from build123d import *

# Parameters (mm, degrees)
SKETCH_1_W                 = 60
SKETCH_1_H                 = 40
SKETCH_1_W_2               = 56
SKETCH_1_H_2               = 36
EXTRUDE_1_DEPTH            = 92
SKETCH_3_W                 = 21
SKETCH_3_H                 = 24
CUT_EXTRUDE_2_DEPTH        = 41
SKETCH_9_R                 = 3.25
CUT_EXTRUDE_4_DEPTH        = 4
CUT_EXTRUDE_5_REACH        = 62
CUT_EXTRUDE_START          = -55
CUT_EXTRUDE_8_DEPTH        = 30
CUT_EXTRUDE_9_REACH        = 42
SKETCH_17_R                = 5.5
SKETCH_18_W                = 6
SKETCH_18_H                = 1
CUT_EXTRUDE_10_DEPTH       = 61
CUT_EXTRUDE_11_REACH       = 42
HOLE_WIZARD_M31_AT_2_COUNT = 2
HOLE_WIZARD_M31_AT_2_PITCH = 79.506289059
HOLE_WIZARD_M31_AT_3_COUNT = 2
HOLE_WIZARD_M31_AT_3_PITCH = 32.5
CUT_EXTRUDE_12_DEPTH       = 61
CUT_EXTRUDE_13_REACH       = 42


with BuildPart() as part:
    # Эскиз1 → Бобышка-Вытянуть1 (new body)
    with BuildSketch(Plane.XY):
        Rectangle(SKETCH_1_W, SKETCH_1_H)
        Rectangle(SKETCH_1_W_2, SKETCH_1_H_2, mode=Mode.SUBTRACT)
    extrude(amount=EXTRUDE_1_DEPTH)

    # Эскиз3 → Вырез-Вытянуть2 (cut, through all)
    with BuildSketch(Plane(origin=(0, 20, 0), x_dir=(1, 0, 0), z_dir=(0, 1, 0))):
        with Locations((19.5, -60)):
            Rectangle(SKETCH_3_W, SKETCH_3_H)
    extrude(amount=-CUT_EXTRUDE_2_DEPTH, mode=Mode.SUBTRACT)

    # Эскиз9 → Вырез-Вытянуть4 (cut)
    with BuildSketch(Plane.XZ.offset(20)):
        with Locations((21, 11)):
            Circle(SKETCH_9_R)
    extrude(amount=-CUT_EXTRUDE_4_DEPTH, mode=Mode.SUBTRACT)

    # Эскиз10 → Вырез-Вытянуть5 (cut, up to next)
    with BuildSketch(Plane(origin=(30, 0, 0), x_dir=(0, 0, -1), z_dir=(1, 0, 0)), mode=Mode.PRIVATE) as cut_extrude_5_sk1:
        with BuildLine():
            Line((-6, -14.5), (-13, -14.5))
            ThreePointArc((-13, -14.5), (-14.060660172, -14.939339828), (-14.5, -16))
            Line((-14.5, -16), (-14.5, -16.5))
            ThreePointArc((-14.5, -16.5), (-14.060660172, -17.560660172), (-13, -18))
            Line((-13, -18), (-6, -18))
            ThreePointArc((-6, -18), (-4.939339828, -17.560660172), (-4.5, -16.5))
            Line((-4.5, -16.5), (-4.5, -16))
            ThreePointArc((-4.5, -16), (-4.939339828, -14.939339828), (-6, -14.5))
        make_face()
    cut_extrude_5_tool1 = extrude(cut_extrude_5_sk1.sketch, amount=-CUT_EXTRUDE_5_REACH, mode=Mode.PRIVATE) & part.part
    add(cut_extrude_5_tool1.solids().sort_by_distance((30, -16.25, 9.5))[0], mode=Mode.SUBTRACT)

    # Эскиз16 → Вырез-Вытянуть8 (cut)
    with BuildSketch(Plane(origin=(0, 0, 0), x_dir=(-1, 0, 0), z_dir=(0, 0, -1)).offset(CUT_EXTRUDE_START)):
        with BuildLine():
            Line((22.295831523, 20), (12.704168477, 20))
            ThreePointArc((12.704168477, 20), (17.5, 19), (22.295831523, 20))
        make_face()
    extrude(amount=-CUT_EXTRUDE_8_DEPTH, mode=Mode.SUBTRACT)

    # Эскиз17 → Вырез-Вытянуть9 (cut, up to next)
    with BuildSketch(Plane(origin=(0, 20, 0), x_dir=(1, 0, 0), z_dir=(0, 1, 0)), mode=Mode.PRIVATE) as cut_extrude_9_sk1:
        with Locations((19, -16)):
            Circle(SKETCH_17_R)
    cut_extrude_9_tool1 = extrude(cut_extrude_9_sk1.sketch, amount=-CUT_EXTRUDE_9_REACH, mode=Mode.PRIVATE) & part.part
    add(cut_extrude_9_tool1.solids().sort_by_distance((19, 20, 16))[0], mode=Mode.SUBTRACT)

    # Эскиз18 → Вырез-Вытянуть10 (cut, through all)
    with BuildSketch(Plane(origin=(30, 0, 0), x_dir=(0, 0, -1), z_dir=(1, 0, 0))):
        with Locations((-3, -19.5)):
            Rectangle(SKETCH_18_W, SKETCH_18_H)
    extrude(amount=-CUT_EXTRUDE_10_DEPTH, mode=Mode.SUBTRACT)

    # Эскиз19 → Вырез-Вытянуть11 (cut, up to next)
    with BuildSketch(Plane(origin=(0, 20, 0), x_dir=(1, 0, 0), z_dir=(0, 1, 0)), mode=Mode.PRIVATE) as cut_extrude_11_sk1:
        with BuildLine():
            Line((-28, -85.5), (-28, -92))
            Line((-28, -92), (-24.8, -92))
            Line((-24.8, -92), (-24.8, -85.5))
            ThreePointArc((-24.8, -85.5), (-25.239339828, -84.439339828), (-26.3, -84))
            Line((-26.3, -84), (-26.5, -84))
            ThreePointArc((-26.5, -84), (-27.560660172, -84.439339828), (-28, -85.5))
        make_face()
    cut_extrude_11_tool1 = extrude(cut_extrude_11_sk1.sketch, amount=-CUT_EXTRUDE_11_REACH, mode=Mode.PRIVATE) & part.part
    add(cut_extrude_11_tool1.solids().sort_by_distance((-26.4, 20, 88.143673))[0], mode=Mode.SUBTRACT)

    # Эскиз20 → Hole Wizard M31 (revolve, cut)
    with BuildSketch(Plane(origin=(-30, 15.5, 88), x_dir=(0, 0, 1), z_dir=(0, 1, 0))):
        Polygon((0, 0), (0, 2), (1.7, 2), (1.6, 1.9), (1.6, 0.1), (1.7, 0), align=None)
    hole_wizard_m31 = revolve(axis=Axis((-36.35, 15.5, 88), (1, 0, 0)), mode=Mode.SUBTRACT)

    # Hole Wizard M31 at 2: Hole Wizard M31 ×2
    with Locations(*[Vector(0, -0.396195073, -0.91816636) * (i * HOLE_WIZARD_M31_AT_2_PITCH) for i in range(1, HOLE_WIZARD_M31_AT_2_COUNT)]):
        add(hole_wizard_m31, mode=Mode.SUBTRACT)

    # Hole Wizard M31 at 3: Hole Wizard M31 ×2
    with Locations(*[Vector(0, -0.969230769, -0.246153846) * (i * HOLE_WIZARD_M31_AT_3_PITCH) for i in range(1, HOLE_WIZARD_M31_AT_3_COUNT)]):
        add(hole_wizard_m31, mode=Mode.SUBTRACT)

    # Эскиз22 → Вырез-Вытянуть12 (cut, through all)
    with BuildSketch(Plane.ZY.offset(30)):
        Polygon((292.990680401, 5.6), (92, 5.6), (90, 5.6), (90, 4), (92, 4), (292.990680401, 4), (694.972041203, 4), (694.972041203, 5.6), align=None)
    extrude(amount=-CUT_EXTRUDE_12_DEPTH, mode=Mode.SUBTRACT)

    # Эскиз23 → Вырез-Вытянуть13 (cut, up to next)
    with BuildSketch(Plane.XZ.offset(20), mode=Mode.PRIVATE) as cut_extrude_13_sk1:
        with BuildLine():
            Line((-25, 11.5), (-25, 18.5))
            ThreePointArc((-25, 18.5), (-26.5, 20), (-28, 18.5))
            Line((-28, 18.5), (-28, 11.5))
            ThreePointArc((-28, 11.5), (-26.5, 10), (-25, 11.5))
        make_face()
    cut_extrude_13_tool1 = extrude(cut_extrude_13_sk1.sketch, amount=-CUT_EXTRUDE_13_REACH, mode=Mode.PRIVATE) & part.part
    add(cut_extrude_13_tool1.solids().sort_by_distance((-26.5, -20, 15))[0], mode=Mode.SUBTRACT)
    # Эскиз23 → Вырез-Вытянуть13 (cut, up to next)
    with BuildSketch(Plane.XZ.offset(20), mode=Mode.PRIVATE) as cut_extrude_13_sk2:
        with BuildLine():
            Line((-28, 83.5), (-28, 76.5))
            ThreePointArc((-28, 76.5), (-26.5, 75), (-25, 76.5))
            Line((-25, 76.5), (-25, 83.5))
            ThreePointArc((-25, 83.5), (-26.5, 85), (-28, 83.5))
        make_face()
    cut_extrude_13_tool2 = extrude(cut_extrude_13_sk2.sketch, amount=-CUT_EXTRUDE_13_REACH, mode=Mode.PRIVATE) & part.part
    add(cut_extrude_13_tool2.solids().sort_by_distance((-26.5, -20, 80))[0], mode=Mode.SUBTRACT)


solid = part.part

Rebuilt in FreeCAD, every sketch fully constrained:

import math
import FreeCAD as App
import Part
import Sketcher

doc = App.newDocument("Part")
body = doc.addObject("PartDesign::Body", "Body")

# Sketch on XY plane
sketch1 = body.newObject("Sketcher::SketchObject", "Sketch")
sketch1.AttachmentSupport = (doc.getObject("XY_Plane"), [""])
sketch1.MapMode = "FlatFace"
sketch1.addGeometry([
    Part.LineSegment(App.Vector(-30, 20, 0), App.Vector(-30, -20, 0)),  # 0
    Part.LineSegment(App.Vector(-30, -20, 0), App.Vector(30, -20, 0)),  # 1
    Part.LineSegment(App.Vector(30, -20, 0), App.Vector(30, 20, 0)),  # 2
    Part.LineSegment(App.Vector(30, 20, 0), App.Vector(-30, 20, 0)),  # 3
    Part.LineSegment(App.Vector(28, -18, 0), App.Vector(-28, -18, 0)),  # 4
    Part.LineSegment(App.Vector(-28, -18, 0), App.Vector(-28, 18, 0)),  # 5
    Part.LineSegment(App.Vector(-28, 18, 0), App.Vector(28, 18, 0)),  # 6
    Part.LineSegment(App.Vector(28, 18, 0), App.Vector(28, -18, 0)),  # 7
], False)
sketch1.addConstraint([
    Sketcher.Constraint("Coincident", 0, 2, 1, 1),
    Sketcher.Constraint("Coincident", 1, 2, 2, 1),
    Sketcher.Constraint("Coincident", 2, 2, 3, 1),
    Sketcher.Constraint("Coincident", 3, 2, 0, 1),
    Sketcher.Constraint("Coincident", 4, 2, 5, 1),
    Sketcher.Constraint("Coincident", 5, 2, 6, 1),
    Sketcher.Constraint("Coincident", 6, 2, 7, 1),
    Sketcher.Constraint("Coincident", 7, 2, 4, 1),
    Sketcher.Constraint("Vertical", 0),
    Sketcher.Constraint("Horizontal", 1),
    Sketcher.Constraint("Vertical", 2),
    Sketcher.Constraint("Horizontal", 3),
    Sketcher.Constraint("Horizontal", 4),
    Sketcher.Constraint("Vertical", 5),
    Sketcher.Constraint("Horizontal", 6),
    Sketcher.Constraint("Vertical", 7),
    Sketcher.Constraint("Symmetric", 0, 2, 2, 2, -1, 1),
    Sketcher.Constraint("Symmetric", 4, 2, 6, 2, -1, 1),
    Sketcher.Constraint("DistanceX", 1, 1, 1, 2, 60.0),
    Sketcher.Constraint("DistanceX", 4, 2, 4, 1, 56.0),
    Sketcher.Constraint("DistanceY", 0, 2, 0, 1, 40.0),
    Sketcher.Constraint("DistanceY", 5, 1, 5, 2, 36.0),
])
pad1 = body.newObject("PartDesign::Pad", "Pad")
pad1.Profile = sketch1
pad1.Length = 92

# Sketch on XZ plane
sketch2 = body.newObject("Sketcher::SketchObject", "Sketch001")
sketch2.AttachmentSupport = (doc.getObject("XZ_Plane"), [""])
sketch2.MapMode = "FlatFace"
sketch2.AttachmentOffset = App.Placement(App.Vector(0, 0, -20), App.Rotation())
sketch2.addGeometry([
    Part.LineSegment(App.Vector(9, 48, 0), App.Vector(9, 72, 0)),
    Part.LineSegment(App.Vector(9, 72, 0), App.Vector(30, 72, 0)),
    Part.LineSegment(App.Vector(30, 72, 0), App.Vector(30, 48, 0)),
    Part.LineSegment(App.Vector(30, 48, 0), App.Vector(9, 48, 0)),
], False)
sketch2.addConstraint([
    Sketcher.Constraint("Coincident", 0, 2, 1, 1),
    Sketcher.Constraint("Coincident", 1, 2, 2, 1),
    Sketcher.Constraint("Coincident", 2, 2, 3, 1),
    Sketcher.Constraint("Coincident", 3, 2, 0, 1),
    Sketcher.Constraint("Vertical", 0),
    Sketcher.Constraint("Horizontal", 1),
    Sketcher.Constraint("Vertical", 2),
    Sketcher.Constraint("Horizontal", 3),
    Sketcher.Constraint("DistanceX", 1, 1, 1, 2, 21.0),
    Sketcher.Constraint("DistanceY", 0, 1, 0, 2, 24.0),
    Sketcher.Constraint("DistanceX", -1, 1, 0, 2, 9.0),
    Sketcher.Constraint("DistanceY", -1, 1, 0, 2, 72.0),
])
pocket1 = body.newObject("PartDesign::Pocket", "Pocket")
pocket1.Profile = sketch2
pocket1.Type = "ThroughAll"
pocket1.Reversed = True

# Sketch on XZ plane
sketch3 = body.newObject("Sketcher::SketchObject", "Sketch002")
sketch3.AttachmentSupport = (doc.getObject("XZ_Plane"), [""])
sketch3.MapMode = "FlatFace"
sketch3.AttachmentOffset = App.Placement(App.Vector(0, 0, 20), App.Rotation())
sketch3.addGeometry(Part.Circle(App.Vector(21, 11, 0), App.Vector(0, 0, 1), 3.2), False)
sketch3.addConstraint([
    Sketcher.Constraint("Diameter", 0, 6.5),
    Sketcher.Constraint("DistanceX", -1, 1, 0, 3, 21.0),
    Sketcher.Constraint("DistanceY", -1, 1, 0, 3, 11.0),
])
pocket2 = body.newObject("PartDesign::Pocket", "Pocket001")
pocket2.Profile = sketch3
pocket2.Length = 4

# Sketch on YZ plane
sketch4 = body.newObject("Sketcher::SketchObject", "Sketch003")
sketch4.AttachmentSupport = (doc.getObject("YZ_Plane"), [""])
sketch4.MapMode = "FlatFace"
sketch4.AttachmentOffset = App.Placement(App.Vector(0, 0, 30), App.Rotation())
sketch4.addGeometry([
    Part.LineSegment(App.Vector(-14.5, 6, 0), App.Vector(-14.5, 13, 0)),  # 0
    Part.ArcOfCircle(Part.Circle(App.Vector(-16, 13, 0), App.Vector(0, 0, 1), 1.5), math.radians(0), math.radians(90)),  # 1
    Part.LineSegment(App.Vector(-16, 14.5, 0), App.Vector(-16.5, 14.5, 0)),  # 2
    Part.ArcOfCircle(Part.Circle(App.Vector(-16.5, 13, 0), App.Vector(0, 0, 1), 1.5), math.radians(90), math.radians(180)),  # 3
    Part.LineSegment(App.Vector(-18, 13, 0), App.Vector(-18, 6, 0)),  # 4
    Part.ArcOfCircle(Part.Circle(App.Vector(-16.5, 6, 0), App.Vector(0, 0, 1), 1.5), math.radians(180), math.radians(270)),  # 5
    Part.LineSegment(App.Vector(-16.5, 4.5, 0), App.Vector(-16, 4.5, 0)),  # 6
    Part.ArcOfCircle(Part.Circle(App.Vector(-16, 6, 0), App.Vector(0, 0, 1), 1.5), math.radians(-90), math.radians(0)),  # 7
], False)
sketch4.addConstraint([
    Sketcher.Constraint("Tangent", 0, 2, 1, 1),
    Sketcher.Constraint("Tangent", 1, 2, 2, 1),
    Sketcher.Constraint("Tangent", 2, 2, 3, 1),
    Sketcher.Constraint("Tangent", 3, 2, 4, 1),
    Sketcher.Constraint("Tangent", 4, 2, 5, 1),
    Sketcher.Constraint("Tangent", 5, 2, 6, 1),
    Sketcher.Constraint("Tangent", 6, 2, 7, 1),
    Sketcher.Constraint("Tangent", 7, 2, 0, 1),
    Sketcher.Constraint("Vertical", 0),
    Sketcher.Constraint("Horizontal", 2),
    Sketcher.Constraint("Vertical", 4),
    Sketcher.Constraint("Horizontal", 6),
    Sketcher.Constraint("Equal", 1, 3),
    Sketcher.Constraint("Equal", 3, 5),
    Sketcher.Constraint("Equal", 5, 7),
    Sketcher.Constraint("Radius", 1, 1.5),
    Sketcher.Constraint("DistanceY", 0, 1, 0, 2, 7.0),
    Sketcher.Constraint("DistanceX", 2, 2, 2, 1, 0.5),
    Sketcher.Constraint("DistanceX", 1, 3, -1, 1, 16.0),
    Sketcher.Constraint("DistanceY", -1, 1, 1, 3, 13.0),
])
pocket3 = body.newObject("PartDesign::Pocket", "Pocket002")
pocket3.Profile = sketch4
pocket3.Type = "UpToFirst"

# Sketch on XY plane
sketch5 = body.newObject("Sketcher::SketchObject", "Sketch004")
sketch5.AttachmentSupport = (doc.getObject("XY_Plane"), [""])
sketch5.MapMode = "FlatFace"
sketch5.AttachmentOffset = App.Placement(App.Vector(0, 0, 55), App.Rotation())
sketch5.addGeometry([
    Part.LineSegment(App.Vector(-22, 20, 0), App.Vector(-13, 20, 0)),
    Part.ArcOfCircle(Part.Circle(App.Vector(-18, 31, 0), App.Vector(0, 0, 1), 12), math.radians(-114), math.radians(-66)),
], False)
sketch5.addConstraint([
    Sketcher.Constraint("Coincident", 0, 1, 1, 1),
    Sketcher.Constraint("Coincident", 1, 2, 0, 2),
    Sketcher.Constraint("Horizontal", 0),
    Sketcher.Constraint("Radius", 1, 12.0),
    Sketcher.Constraint("DistanceY", -1, 1, 1, 3, 31.0),
    Sketcher.Constraint("DistanceY", -1, 1, 0, 1, 20.0),
    Sketcher.Constraint("DistanceX", 1, 3, -1, 1, 17.5),
])
pocket4 = body.newObject("PartDesign::Pocket", "Pocket003")
pocket4.Profile = sketch5
pocket4.Length = 30
pocket4.Reversed = True

# Sketch on XZ plane
sketch6 = body.newObject("Sketcher::SketchObject", "Sketch005")
sketch6.AttachmentSupport = (doc.getObject("XZ_Plane"), [""])
sketch6.MapMode = "FlatFace"
sketch6.AttachmentOffset = App.Placement(App.Vector(0, 0, -20), App.Rotation())
sketch6.addGeometry(Part.Circle(App.Vector(19, 16, 0), App.Vector(0, 0, 1), 6), False)
sketch6.addConstraint([
    Sketcher.Constraint("Diameter", 0, 11.0),
    Sketcher.Constraint("DistanceX", -1, 1, 0, 3, 19.0),
    Sketcher.Constraint("DistanceY", -1, 1, 0, 3, 16.0),
])
pocket5 = body.newObject("PartDesign::Pocket", "Pocket004")
pocket5.Profile = sketch6
pocket5.Type = "UpToFirst"
pocket5.Reversed = True

# Sketch on YZ plane
sketch7 = body.newObject("Sketcher::SketchObject", "Sketch006")
sketch7.AttachmentSupport = (doc.getObject("YZ_Plane"), [""])
sketch7.MapMode = "FlatFace"
sketch7.AttachmentOffset = App.Placement(App.Vector(0, 0, 30), App.Rotation())
sketch7.addGeometry([
    Part.LineSegment(App.Vector(-19, 6, 0), App.Vector(-20, 6, 0)),
    Part.LineSegment(App.Vector(-20, 6, 0), App.Vector(-20, 0, 0)),
    Part.LineSegment(App.Vector(-20, 0, 0), App.Vector(-19, 0, 0)),
    Part.LineSegment(App.Vector(-19, 0, 0), App.Vector(-19, 6, 0)),
], False)
sketch7.addConstraint([
    Sketcher.Constraint("Coincident", 0, 2, 1, 1),
    Sketcher.Constraint("Coincident", 1, 2, 2, 1),
    Sketcher.Constraint("Coincident", 2, 2, 3, 1),
    Sketcher.Constraint("Coincident", 3, 2, 0, 1),
    Sketcher.Constraint("Horizontal", 0),
    Sketcher.Constraint("Vertical", 1),
    Sketcher.Constraint("Horizontal", 2),
    Sketcher.Constraint("Vertical", 3),
    Sketcher.Constraint("PointOnObject", 1, 2, -1),
    Sketcher.Constraint("DistanceX", 0, 2, 0, 1, 1.0),
    Sketcher.Constraint("DistanceY", 1, 2, 1, 1, 6.0),
    Sketcher.Constraint("DistanceX", 0, 2, -1, 1, 20.0),
])
pocket6 = body.newObject("PartDesign::Pocket", "Pocket005")
pocket6.Profile = sketch7
pocket6.Type = "ThroughAll"

# Sketch on XZ plane
sketch8 = body.newObject("Sketcher::SketchObject", "Sketch007")
sketch8.AttachmentSupport = (doc.getObject("XZ_Plane"), [""])
sketch8.MapMode = "FlatFace"
sketch8.AttachmentOffset = App.Placement(App.Vector(0, 0, -20), App.Rotation())
sketch8.addGeometry([
    Part.LineSegment(App.Vector(-28, 85.5, 0), App.Vector(-28, 92, 0)),  # 0
    Part.LineSegment(App.Vector(-28, 92, 0), App.Vector(-24.8, 92, 0)),  # 1
    Part.LineSegment(App.Vector(-24.8, 92, 0), App.Vector(-24.8, 85.5, 0)),  # 2
    Part.ArcOfCircle(Part.Circle(App.Vector(-26.3, 85.5, 0), App.Vector(0, 0, 1), 1.5), math.radians(-90), math.radians(0)),  # 3
    Part.LineSegment(App.Vector(-26.3, 84, 0), App.Vector(-26.5, 84, 0)),  # 4
    Part.ArcOfCircle(Part.Circle(App.Vector(-26.5, 85.5, 0), App.Vector(0, 0, 1), 1.5), math.radians(180), math.radians(270)),  # 5
], False)
sketch8.addConstraint([
    Sketcher.Constraint("Coincident", 0, 2, 1, 1),
    Sketcher.Constraint("Coincident", 1, 2, 2, 1),
    Sketcher.Constraint("Tangent", 2, 2, 3, 2),
    Sketcher.Constraint("Tangent", 3, 1, 4, 1),
    Sketcher.Constraint("Tangent", 4, 2, 5, 2),
    Sketcher.Constraint("Tangent", 5, 1, 0, 1),
    Sketcher.Constraint("Vertical", 0),
    Sketcher.Constraint("Horizontal", 1),
    Sketcher.Constraint("Vertical", 2),
    Sketcher.Constraint("Horizontal", 4),
    Sketcher.Constraint("Equal", 3, 5),
    Sketcher.Constraint("Radius", 3, 1.5),
    Sketcher.Constraint("DistanceX", 1, 1, 1, 2, 3.2),
    Sketcher.Constraint("DistanceY", 0, 1, 0, 2, 6.5),
    Sketcher.Constraint("DistanceX", 0, 2, -1, 1, 28.0),
    Sketcher.Constraint("DistanceY", -1, 1, 0, 2, 92.0),
])
pocket7 = body.newObject("PartDesign::Pocket", "Pocket006")
pocket7.Profile = sketch8
pocket7.Type = "UpToFirst"
pocket7.Reversed = True

# Sketch on XZ plane
sketch9 = body.newObject("Sketcher::SketchObject", "Sketch008")
sketch9.AttachmentSupport = (doc.getObject("XZ_Plane"), [""])
sketch9.MapMode = "FlatFace"
sketch9.AttachmentOffset = App.Placement(App.Vector(0, 0, -15.5), App.Rotation())
sketch9.addGeometry([
    Part.LineSegment(App.Vector(-28, 88, 0), App.Vector(-30, 88, 0)),  # 0
    Part.LineSegment(App.Vector(-30, 88, 0), App.Vector(-30, 89.7, 0)),  # 1
    Part.LineSegment(App.Vector(-30, 89.7, 0), App.Vector(-29.9, 89.6, 0)),  # 2
    Part.LineSegment(App.Vector(-29.9, 89.6, 0), App.Vector(-28.1, 89.6, 0)),  # 3
    Part.LineSegment(App.Vector(-28.1, 89.6, 0), App.Vector(-28, 89.7, 0)),  # 4
    Part.LineSegment(App.Vector(-28, 89.7, 0), App.Vector(-28, 88, 0)),  # 5
], False)
sketch9.addGeometry(Part.LineSegment(App.Vector(-30, 88, 0), App.Vector(-28, 88, 0)), True)  # axis
sketch9.addConstraint([
    Sketcher.Constraint("Coincident", 0, 2, 1, 1),
    Sketcher.Constraint("Coincident", 1, 2, 2, 1),
    Sketcher.Constraint("Coincident", 2, 2, 3, 1),
    Sketcher.Constraint("Coincident", 3, 2, 4, 1),
    Sketcher.Constraint("Coincident", 4, 2, 5, 1),
    Sketcher.Constraint("Coincident", 5, 2, 0, 1),
    Sketcher.Constraint("Horizontal", 0),
    Sketcher.Constraint("Vertical", 1),
    Sketcher.Constraint("Horizontal", 3),
    Sketcher.Constraint("Vertical", 5),
    Sketcher.Constraint("Horizontal", 6),
    Sketcher.Constraint("Coincident", 6, 1, 0, 2),
    Sketcher.Constraint("Perpendicular", 2, 4),
    Sketcher.Constraint("Horizontal", 1, 2, 4, 2),
    Sketcher.Constraint("Vertical", 4, 2, 6, 2),
    Sketcher.Constraint("Equal", 2, 4),
    Sketcher.Constraint("DistanceX", 0, 2, 0, 1, 2.0),
    Sketcher.Constraint("DistanceX", 3, 1, 3, 2, 1.8),
    Sketcher.Constraint("DistanceY", 1, 1, 1, 2, 1.7),
    Sketcher.Constraint("DistanceX", 0, 2, -1, 1, 30.0),
    Sketcher.Constraint("DistanceY", -1, 1, 0, 2, 88.0),
])
groove = body.newObject("PartDesign::Groove", "Groove")
groove.Profile = sketch9
groove.ReferenceAxis = (sketch9, ["Axis0"])
groove.Angle = 360
doc.recompute()

datumline = body.newObject("PartDesign::Line", "DatumLine")
datumline.Placement = App.Placement(App.Vector(0, 0, 0), App.Rotation(App.Vector(0, 0, 1), App.Vector(0, -0.396195073, -0.91816636)))
linearpattern = body.newObject("PartDesign::LinearPattern", "LinearPattern")
linearpattern.Originals = [groove]
linearpattern.Direction = (datumline, [""])
linearpattern.Mode = "offset"
linearpattern.Offset = 79.506289
linearpattern.Occurrences = 2
body.Tip = linearpattern
doc.recompute()

datumline2 = body.newObject("PartDesign::Line", "DatumLine001")
datumline2.Placement = App.Placement(App.Vector(0, 0, 0), App.Rotation(App.Vector(0, 0, 1), App.Vector(0, -0.969230769, -0.246153846)))
linearpattern2 = body.newObject("PartDesign::LinearPattern", "LinearPattern001")
linearpattern2.Originals = [groove]
linearpattern2.Direction = (datumline2, [""])
linearpattern2.Mode = "offset"
linearpattern2.Offset = 32.5
linearpattern2.Occurrences = 2
body.Tip = linearpattern2

# Sketch on YZ plane
sketch10 = body.newObject("Sketcher::SketchObject", "Sketch009")
sketch10.AttachmentSupport = (doc.getObject("YZ_Plane"), [""])
sketch10.MapMode = "FlatFace"
sketch10.AttachmentOffset = App.Placement(App.Vector(0, 0, -30), App.Rotation())
sketch10.addGeometry([
    Part.LineSegment(App.Vector(5.6, 90, 0), App.Vector(4, 90, 0)),
    Part.LineSegment(App.Vector(4, 90, 0), App.Vector(4, 695, 0)),
    Part.LineSegment(App.Vector(4, 695, 0), App.Vector(5.6, 695, 0)),
    Part.LineSegment(App.Vector(5.6, 695, 0), App.Vector(5.6, 90, 0)),
], False)
sketch10.addConstraint([
    Sketcher.Constraint("Coincident", 0, 2, 1, 1),
    Sketcher.Constraint("Coincident", 1, 2, 2, 1),
    Sketcher.Constraint("Coincident", 2, 2, 3, 1),
    Sketcher.Constraint("Coincident", 3, 2, 0, 1),
    Sketcher.Constraint("Horizontal", 0),
    Sketcher.Constraint("Vertical", 1),
    Sketcher.Constraint("Horizontal", 2),
    Sketcher.Constraint("Vertical", 3),
    Sketcher.Constraint("DistanceX", 0, 2, 0, 1, 1.6),
    Sketcher.Constraint("DistanceX", -1, 1, 0, 2, 4.0),
    Sketcher.Constraint("DistanceY", -1, 1, 0, 2, 90.0),
    Sketcher.Constraint("DistanceY", 1, 1, 1, 2, 604.972041),
])
pocket8 = body.newObject("PartDesign::Pocket", "Pocket007")
pocket8.Profile = sketch10
pocket8.Type = "ThroughAll"
pocket8.Reversed = True

# Sketch on XZ plane
sketch11 = body.newObject("Sketcher::SketchObject", "Sketch010")
sketch11.AttachmentSupport = (doc.getObject("XZ_Plane"), [""])
sketch11.MapMode = "FlatFace"
sketch11.AttachmentOffset = App.Placement(App.Vector(0, 0, 20), App.Rotation())
sketch11.addGeometry([
    Part.LineSegment(App.Vector(-25, 11.5, 0), App.Vector(-25, 18.5, 0)),
    Part.ArcOfCircle(Part.Circle(App.Vector(-26.5, 18.5, 0), App.Vector(0, 0, 1), 1.5), math.radians(0), math.radians(180)),
    Part.LineSegment(App.Vector(-28, 18.5, 0), App.Vector(-28, 11.5, 0)),
    Part.ArcOfCircle(Part.Circle(App.Vector(-26.5, 11.5, 0), App.Vector(0, 0, 1), 1.5), math.radians(180), math.radians(360)),
], False)
sketch11.addConstraint([
    Sketcher.Constraint("Tangent", 0, 2, 1, 1),
    Sketcher.Constraint("Tangent", 1, 2, 2, 1),
    Sketcher.Constraint("Tangent", 2, 2, 3, 1),
    Sketcher.Constraint("Tangent", 3, 2, 0, 1),
    Sketcher.Constraint("Vertical", 0),
    Sketcher.Constraint("Vertical", 2),
    Sketcher.Constraint("Radius", 1, 1.5),
    Sketcher.Constraint("DistanceY", 0, 1, 0, 2, 7.0),
    Sketcher.Constraint("DistanceX", 0, 2, -1, 1, 25.0),
    Sketcher.Constraint("DistanceY", -1, 1, 1, 3, 18.5),
])
pocket9 = body.newObject("PartDesign::Pocket", "Pocket008")
pocket9.Profile = sketch11
pocket9.Type = "UpToFirst"

# Sketch on XZ plane
sketch12 = body.newObject("Sketcher::SketchObject", "Sketch011")
sketch12.AttachmentSupport = (doc.getObject("XZ_Plane"), [""])
sketch12.MapMode = "FlatFace"
sketch12.AttachmentOffset = App.Placement(App.Vector(0, 0, 20), App.Rotation())
sketch12.addGeometry([
    Part.LineSegment(App.Vector(-28, 83.5, 0), App.Vector(-28, 76.5, 0)),
    Part.ArcOfCircle(Part.Circle(App.Vector(-26.5, 76.5, 0), App.Vector(0, 0, 1), 1.5), math.radians(180), math.radians(360)),
    Part.LineSegment(App.Vector(-25, 76.5, 0), App.Vector(-25, 83.5, 0)),
    Part.ArcOfCircle(Part.Circle(App.Vector(-26.5, 83.5, 0), App.Vector(0, 0, 1), 1.5), math.radians(0), math.radians(180)),
], False)
sketch12.addConstraint([
    Sketcher.Constraint("Tangent", 0, 2, 1, 1),
    Sketcher.Constraint("Tangent", 1, 2, 2, 1),
    Sketcher.Constraint("Tangent", 2, 2, 3, 1),
    Sketcher.Constraint("Tangent", 3, 2, 0, 1),
    Sketcher.Constraint("Vertical", 0),
    Sketcher.Constraint("Vertical", 2),
    Sketcher.Constraint("Radius", 1, 1.5),
    Sketcher.Constraint("DistanceY", 0, 2, 0, 1, 7.0),
    Sketcher.Constraint("DistanceX", 0, 2, -1, 1, 28.0),
    Sketcher.Constraint("DistanceY", -1, 1, 1, 3, 76.5),
])
pocket10 = body.newObject("PartDesign::Pocket", "Pocket009")
pocket10.Profile = sketch12
pocket10.Type = "UpToFirst"

doc.recompute()
